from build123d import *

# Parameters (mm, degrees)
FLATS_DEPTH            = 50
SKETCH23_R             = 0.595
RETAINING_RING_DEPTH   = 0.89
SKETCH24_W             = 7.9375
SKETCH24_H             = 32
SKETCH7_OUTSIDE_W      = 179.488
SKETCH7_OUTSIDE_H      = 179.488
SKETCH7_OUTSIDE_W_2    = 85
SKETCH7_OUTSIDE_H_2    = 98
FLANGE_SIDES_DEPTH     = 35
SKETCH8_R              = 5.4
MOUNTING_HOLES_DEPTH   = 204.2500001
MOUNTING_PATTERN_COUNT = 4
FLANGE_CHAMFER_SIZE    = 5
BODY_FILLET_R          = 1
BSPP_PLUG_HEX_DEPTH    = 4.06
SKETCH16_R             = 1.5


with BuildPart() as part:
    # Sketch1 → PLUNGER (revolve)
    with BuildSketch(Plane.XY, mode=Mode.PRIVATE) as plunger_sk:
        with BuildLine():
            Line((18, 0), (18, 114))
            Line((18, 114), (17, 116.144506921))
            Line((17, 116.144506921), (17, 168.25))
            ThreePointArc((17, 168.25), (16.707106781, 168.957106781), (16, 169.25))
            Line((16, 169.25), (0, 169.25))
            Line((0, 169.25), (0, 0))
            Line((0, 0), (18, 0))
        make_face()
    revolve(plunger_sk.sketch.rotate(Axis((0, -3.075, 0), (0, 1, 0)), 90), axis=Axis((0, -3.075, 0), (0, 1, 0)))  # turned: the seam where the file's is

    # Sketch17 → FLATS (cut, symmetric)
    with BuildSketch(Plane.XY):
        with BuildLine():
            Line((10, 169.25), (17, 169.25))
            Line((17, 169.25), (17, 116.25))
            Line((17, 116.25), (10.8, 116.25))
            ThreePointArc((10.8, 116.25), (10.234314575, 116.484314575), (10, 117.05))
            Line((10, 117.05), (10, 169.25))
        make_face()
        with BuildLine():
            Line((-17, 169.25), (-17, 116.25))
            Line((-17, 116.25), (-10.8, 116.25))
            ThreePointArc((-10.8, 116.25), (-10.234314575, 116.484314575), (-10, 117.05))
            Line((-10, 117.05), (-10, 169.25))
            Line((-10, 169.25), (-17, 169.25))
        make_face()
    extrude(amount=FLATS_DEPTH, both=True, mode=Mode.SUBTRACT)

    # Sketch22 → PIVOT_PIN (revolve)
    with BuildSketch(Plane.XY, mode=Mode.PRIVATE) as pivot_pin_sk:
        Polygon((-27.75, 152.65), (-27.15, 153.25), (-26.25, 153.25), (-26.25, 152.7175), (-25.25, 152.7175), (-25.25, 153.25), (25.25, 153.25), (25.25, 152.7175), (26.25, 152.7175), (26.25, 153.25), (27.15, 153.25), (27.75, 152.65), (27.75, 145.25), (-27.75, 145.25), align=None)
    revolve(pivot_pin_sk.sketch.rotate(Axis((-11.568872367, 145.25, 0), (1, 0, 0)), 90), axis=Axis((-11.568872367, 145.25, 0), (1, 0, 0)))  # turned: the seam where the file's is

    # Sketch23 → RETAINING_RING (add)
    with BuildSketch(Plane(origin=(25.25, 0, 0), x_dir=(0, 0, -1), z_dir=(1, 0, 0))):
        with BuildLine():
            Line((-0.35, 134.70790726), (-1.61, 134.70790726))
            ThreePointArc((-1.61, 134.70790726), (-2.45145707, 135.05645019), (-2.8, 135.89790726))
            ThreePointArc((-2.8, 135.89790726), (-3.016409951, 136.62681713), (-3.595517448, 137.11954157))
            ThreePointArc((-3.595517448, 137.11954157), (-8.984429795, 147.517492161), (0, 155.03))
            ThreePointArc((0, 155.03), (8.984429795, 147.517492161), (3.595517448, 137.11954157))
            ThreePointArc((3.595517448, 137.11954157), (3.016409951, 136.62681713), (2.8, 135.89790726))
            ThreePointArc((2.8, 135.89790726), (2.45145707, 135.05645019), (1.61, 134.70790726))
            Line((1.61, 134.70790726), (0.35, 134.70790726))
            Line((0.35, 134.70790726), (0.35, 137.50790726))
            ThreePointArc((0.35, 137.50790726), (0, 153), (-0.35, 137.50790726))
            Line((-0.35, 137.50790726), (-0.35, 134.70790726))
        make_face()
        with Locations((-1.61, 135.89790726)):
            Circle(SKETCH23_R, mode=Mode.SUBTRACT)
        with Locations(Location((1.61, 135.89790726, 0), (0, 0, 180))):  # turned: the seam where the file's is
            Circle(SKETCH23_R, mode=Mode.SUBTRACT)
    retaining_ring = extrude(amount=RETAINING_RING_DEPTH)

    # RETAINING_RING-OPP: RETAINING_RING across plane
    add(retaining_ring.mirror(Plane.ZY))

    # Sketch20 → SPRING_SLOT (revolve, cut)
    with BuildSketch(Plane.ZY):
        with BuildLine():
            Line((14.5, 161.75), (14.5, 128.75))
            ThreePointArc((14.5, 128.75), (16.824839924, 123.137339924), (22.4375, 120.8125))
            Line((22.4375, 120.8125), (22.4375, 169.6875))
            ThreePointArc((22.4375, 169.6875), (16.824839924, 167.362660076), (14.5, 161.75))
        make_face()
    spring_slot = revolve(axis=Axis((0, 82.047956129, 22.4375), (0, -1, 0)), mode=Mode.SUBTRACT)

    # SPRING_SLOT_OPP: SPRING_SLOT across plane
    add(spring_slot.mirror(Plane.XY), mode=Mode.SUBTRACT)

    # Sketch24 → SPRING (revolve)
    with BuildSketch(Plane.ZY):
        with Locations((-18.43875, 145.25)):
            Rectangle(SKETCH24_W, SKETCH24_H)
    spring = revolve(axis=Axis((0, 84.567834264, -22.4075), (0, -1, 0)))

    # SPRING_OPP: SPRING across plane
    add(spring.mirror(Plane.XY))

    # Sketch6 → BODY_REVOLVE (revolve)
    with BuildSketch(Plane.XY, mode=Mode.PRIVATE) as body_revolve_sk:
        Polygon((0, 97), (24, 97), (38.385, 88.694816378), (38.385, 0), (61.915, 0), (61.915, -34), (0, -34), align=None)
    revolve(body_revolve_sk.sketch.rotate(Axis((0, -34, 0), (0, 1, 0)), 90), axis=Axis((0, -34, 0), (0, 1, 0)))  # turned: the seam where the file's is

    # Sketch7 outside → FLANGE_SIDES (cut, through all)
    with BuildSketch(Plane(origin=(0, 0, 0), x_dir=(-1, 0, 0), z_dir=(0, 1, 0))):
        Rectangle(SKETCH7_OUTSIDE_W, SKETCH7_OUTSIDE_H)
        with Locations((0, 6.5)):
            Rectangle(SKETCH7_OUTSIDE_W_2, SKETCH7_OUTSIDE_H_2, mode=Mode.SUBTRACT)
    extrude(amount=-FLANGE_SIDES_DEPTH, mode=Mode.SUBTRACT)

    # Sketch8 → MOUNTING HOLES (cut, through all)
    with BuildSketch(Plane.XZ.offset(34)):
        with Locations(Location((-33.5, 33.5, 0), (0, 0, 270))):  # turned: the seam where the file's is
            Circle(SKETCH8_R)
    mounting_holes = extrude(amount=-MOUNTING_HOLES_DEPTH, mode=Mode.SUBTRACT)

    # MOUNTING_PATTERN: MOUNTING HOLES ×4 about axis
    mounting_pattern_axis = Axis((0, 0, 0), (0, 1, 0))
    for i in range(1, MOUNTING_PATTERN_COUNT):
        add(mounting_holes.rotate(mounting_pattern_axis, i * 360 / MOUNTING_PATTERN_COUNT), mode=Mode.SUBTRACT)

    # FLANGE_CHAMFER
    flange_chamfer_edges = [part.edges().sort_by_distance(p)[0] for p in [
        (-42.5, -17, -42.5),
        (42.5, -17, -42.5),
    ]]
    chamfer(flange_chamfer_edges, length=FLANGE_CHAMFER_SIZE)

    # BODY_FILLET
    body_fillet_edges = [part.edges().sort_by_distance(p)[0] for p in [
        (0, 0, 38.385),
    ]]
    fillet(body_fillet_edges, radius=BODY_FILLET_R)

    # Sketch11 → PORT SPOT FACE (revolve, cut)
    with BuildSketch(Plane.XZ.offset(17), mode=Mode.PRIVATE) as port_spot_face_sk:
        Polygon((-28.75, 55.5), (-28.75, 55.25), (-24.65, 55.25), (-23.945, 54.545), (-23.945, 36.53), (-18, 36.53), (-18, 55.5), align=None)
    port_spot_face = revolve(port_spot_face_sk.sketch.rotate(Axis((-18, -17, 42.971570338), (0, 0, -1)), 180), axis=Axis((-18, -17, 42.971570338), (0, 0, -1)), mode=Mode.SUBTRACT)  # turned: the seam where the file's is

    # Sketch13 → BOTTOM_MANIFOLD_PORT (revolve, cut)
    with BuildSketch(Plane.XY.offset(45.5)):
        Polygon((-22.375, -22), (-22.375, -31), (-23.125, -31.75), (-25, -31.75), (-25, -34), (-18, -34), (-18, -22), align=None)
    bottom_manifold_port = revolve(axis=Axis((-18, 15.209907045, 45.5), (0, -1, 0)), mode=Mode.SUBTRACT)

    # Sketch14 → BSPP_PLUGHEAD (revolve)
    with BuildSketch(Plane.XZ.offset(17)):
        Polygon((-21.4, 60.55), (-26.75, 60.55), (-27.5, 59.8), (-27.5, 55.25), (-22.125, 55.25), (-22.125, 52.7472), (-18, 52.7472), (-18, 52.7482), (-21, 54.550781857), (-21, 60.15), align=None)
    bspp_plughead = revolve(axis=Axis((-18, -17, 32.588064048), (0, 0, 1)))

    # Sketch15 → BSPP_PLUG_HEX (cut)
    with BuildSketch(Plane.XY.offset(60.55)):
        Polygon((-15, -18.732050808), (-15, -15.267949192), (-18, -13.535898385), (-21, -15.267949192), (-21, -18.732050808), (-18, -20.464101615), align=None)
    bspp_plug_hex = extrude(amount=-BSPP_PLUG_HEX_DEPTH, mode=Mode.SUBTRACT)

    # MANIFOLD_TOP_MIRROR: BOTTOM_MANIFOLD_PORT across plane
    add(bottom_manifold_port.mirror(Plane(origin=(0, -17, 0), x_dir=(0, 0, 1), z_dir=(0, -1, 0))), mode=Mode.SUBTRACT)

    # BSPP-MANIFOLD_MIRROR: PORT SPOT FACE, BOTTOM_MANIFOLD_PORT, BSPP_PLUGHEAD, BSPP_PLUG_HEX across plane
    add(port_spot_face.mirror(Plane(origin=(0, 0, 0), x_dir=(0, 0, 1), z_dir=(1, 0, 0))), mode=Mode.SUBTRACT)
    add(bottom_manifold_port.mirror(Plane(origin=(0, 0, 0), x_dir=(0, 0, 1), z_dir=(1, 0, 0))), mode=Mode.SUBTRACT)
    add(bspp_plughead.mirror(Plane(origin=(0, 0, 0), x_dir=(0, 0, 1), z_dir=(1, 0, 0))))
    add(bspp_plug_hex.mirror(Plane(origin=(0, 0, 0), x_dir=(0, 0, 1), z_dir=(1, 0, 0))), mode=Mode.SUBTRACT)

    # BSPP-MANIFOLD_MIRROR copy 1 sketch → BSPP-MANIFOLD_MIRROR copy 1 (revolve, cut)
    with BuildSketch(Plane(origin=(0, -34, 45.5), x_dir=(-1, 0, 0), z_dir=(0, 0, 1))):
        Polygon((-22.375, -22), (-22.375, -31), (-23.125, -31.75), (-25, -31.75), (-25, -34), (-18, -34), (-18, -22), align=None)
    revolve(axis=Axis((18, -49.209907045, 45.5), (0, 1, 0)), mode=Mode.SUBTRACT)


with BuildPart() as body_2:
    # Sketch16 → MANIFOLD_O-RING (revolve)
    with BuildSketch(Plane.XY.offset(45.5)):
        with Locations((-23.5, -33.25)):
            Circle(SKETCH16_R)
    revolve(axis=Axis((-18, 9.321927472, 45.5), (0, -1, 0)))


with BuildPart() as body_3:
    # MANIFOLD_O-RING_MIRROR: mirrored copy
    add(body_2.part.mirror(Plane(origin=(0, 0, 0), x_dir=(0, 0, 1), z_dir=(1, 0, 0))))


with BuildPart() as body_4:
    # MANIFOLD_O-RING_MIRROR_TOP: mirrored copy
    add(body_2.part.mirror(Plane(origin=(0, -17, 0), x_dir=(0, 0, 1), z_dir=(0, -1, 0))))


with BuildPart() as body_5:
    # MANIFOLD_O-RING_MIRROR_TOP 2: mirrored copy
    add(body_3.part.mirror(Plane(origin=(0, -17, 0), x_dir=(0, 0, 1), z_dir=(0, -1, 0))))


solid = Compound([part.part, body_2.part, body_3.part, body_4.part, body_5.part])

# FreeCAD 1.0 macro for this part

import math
import FreeCAD as App
import Part
import Sketcher

V = App.Vector
Q = App.Units.Quantity


def edges_at(feature, points):
    """Names of the edges that pass closest to the given points."""
    edges = feature.Shape.Edges
    near = lambda p: min(range(len(edges)), key=lambda i: edges[i].distToShape(Part.Vertex(*p))[0])
    return sorted({f"Edge{near(p) + 1}" for p in points})


def add_polygon(sketch, points):
    """Adds a closed chain of lines whose ends are joined by coincident constraints."""
    first, n = sketch.GeometryCount, len(points)
    for a, b in zip(points, points[1:] + points[:1]):
        sketch.addGeometry(Part.LineSegment(App.Vector(*a, 0), App.Vector(*b, 0)), False)
    for i in range(n):
        sketch.addConstraint(Sketcher.Constraint("Coincident", first + i, 2, first + (i + 1) % n, 1))

doc = App.newDocument("Part")
params = doc.addObject("Spreadsheet::Sheet", "Params")
for row, (alias, value) in enumerate([
    ("sketch1_radius", "1 mm"),
    ("sketch1_width", "16 mm"),
    ("sketch1_width2", "18 mm"),
    ("sketch1_height", "114 mm"),
    ("sketch1_height2", "169.25 mm"),
    ("revolution_angle", "360 deg"),
    ("sketch2_radius", "0.8 mm"),
    ("sketch2_width", "7 mm"),
    ("sketch2_height", "53 mm"),
    ("pocket1_length", "100 mm"),
    ("sketch3_width", "1 mm"),
    ("sketch3_width2", "55.5 mm"),
    ("sketch3_width3", "0.9 mm"),
    ("sketch3_width4", "50.5 mm"),
    ("sketch3_height", "7.4 mm"),
    ("revolution2_angle", "360 deg"),
    ("sketch4_diameter", "1.19 mm"),
    ("sketch4_radius", "7.75 mm"),
    ("sketch4_radius2", "1.19 mm"),
    ("sketch4_width", "2.8 mm"),
    ("sketch4_height", "1.26 mm"),
    ("pad1_length", "0.89 mm"),
    ("sketch5_width", "33 mm"),
    ("groove_angle", "360 deg"),
    ("sketch6_width", "32 mm"),
    ("revolution3_angle", "360 deg"),
    ("sketch7_width", "24 mm"),
    ("sketch7_height", "131 mm"),
    ("sketch7_height2", "34 mm"),
    ("sketch7_width2", "23.53 mm"),
    ("revolution4_angle", "360 deg"),
    ("sketch8_width", "85 mm"),
    ("sketch8_height", "98 mm"),
    ("sketch9_diameter", "10.8 mm"),
    ("chamfer_size", "5 mm"),
    ("fillet_radius", "1 mm"),
    ("sketch10_width", "4.1 mm"),
    ("sketch10_width2", "10.75 mm"),
    ("sketch10_height", "0.25 mm"),
    ("sketch10_height2", "18.97 mm"),
    ("groove2_angle", "360 deg"),
    ("sketch11_width", "7 mm"),
    ("sketch11_height", "9 mm"),
    ("sketch11_height2", "12 mm"),
    ("sketch11_height3", "2.25 mm"),
    ("groove3_angle", "360 deg"),
    ("sketch12_width", "5.35 mm"),
    ("sketch12_height", "4.55 mm"),
    ("revolution5_angle", "360 deg"),
    ("pocket4_length", "4.06 mm"),
    ("sketch14_width", "7 mm"),
    ("sketch14_height", "9 mm"),
    ("sketch14_height2", "12 mm"),
    ("sketch14_height3", "2.25 mm"),
    ("groove4_angle", "360 deg"),
    ("sketch15_diameter", "3 mm"),
    ("sketch15_height", "10 mm"),
    ("revolution6_angle", "360 deg"),
], start=1):
    params.set(f"A{row}", alias)
    params.set(f"B{row}", "=" + value)
    params.setAlias(f"B{row}", alias)

body = doc.addObject("PartDesign::Body", "Body")

# Sketch on XY plane
sketch1 = doc.addObject("Sketcher::SketchObject", "Sketch")
body.addObject(sketch1)
sketch1.AttachmentSupport = (doc.XY_Plane, [""])
sketch1.MapMode = "FlatFace"
sketch1.addGeometry(Part.LineSegment(V(18, 0, 0), V(18, 114, 0)), False)
sketch1.addGeometry(Part.LineSegment(V(18, 114, 0), V(17, 116.144507, 0)), False)
sketch1.addGeometry(Part.LineSegment(V(17, 116.144507, 0), V(17, 168.25, 0)), False)
sketch1.addGeometry(Part.ArcOfCircle(Part.Circle(V(16, 168.25, 0), V(0, 0, 1), 1), math.radians(0), math.radians(90)), False)
sketch1.addGeometry(Part.LineSegment(V(16, 169.25, 0), V(0, 169.25, 0)), False)
sketch1.addGeometry(Part.LineSegment(V(0, 169.25, 0), V(0, 0, 0)), False)
sketch1.addGeometry(Part.LineSegment(V(0, 0, 0), V(18, 0, 0)), False)
sketch1.addConstraint(Sketcher.Constraint("Coincident", 0, 2, 1, 1))
sketch1.addConstraint(Sketcher.Constraint("Coincident", 1, 2, 2, 1))
sketch1.addConstraint(Sketcher.Constraint("Tangent", 2, 2, 3, 1))
sketch1.addConstraint(Sketcher.Constraint("Tangent", 3, 2, 4, 1))
sketch1.addConstraint(Sketcher.Constraint("Coincident", 4, 2, 5, 1))
sketch1.addConstraint(Sketcher.Constraint("Coincident", 5, 2, 6, 1))
sketch1.addConstraint(Sketcher.Constraint("Coincident", 6, 2, 0, 1))
sketch1.addConstraint(Sketcher.Constraint("Vertical", 0))
sketch1.addConstraint(Sketcher.Constraint("Vertical", 2))
sketch1.addConstraint(Sketcher.Constraint("Horizontal", 4))
sketch1.addConstraint(Sketcher.Constraint("Vertical", 5))
sketch1.addConstraint(Sketcher.Constraint("Horizontal", 6))
sketch1.addConstraint(Sketcher.Constraint("Coincident", 5, 2, -1, 1))
sketch1.addConstraint(Sketcher.Constraint("Radius", 3, Q("1 mm")))
sketch1.addConstraint(Sketcher.Constraint("DistanceX", 4, 2, 4, 1, Q("16 mm")))
sketch1.addConstraint(Sketcher.Constraint("DistanceX", 6, 1, 6, 2, Q("18 mm")))
sketch1.addConstraint(Sketcher.Constraint("DistanceY", 0, 1, 0, 2, Q("114 mm")))
sketch1.addConstraint(Sketcher.Constraint("Angle", 1, Q("115 deg")))
sketch1.addConstraint(Sketcher.Constraint("DistanceY", 5, 2, 5, 1, Q("169.25 mm")))
sketch1.setExpression("Constraints[13]", "Params.sketch1_radius")
sketch1.setExpression("Constraints[14]", "Params.sketch1_width")
sketch1.setExpression("Constraints[15]", "Params.sketch1_width2")
sketch1.setExpression("Constraints[16]", "Params.sketch1_height")
sketch1.setExpression("Constraints[18]", "Params.sketch1_height2")
revolution = doc.addObject("PartDesign::Revolution", "Revolution")
body.addObject(revolution)
revolution.Profile = sketch1
revolution.ReferenceAxis = (sketch1, ["V_Axis"])
revolution.setExpression("Angle", "Params.revolution_angle")

# Sketch on XY plane
sketch2 = doc.addObject("Sketcher::SketchObject", "Sketch001")
body.addObject(sketch2)
sketch2.AttachmentSupport = (doc.XY_Plane, [""])
sketch2.MapMode = "FlatFace"
sketch2.addGeometry(Part.LineSegment(V(17, 169.25, 0), V(10, 169.25, 0)), False)
sketch2.addGeometry(Part.LineSegment(V(10, 169.25, 0), V(10, 117.05, 0)), False)
sketch2.addGeometry(Part.ArcOfCircle(Part.Circle(V(10.8, 117.05, 0), V(0, 0, 1), 0.8), math.radians(180), math.radians(270)), False)
sketch2.addGeometry(Part.LineSegment(V(10.8, 116.25, 0), V(17, 116.25, 0)), False)
sketch2.addGeometry(Part.LineSegment(V(17, 116.25, 0), V(17, 169.25, 0)), False)
sketch2.addGeometry(Part.LineSegment(V(-17, 169.25, 0), V(-17, 116.25, 0)), False)
sketch2.addGeometry(Part.LineSegment(V(-17, 116.25, 0), V(-10.8, 116.25, 0)), False)
sketch2.addGeometry(Part.ArcOfCircle(Part.Circle(V(-10.8, 117.05, 0), V(0, 0, 1), 0.8), math.radians(-90), math.radians(0)), False)
sketch2.addGeometry(Part.LineSegment(V(-10, 117.05, 0), V(-10, 169.25, 0)), False)
sketch2.addGeometry(Part.LineSegment(V(-10, 169.25, 0), V(-17, 169.25, 0)), False)
sketch2.addConstraint(Sketcher.Constraint("Coincident", 0, 2, 1, 1))
sketch2.addConstraint(Sketcher.Constraint("Tangent", 1, 2, 2, 1))
sketch2.addConstraint(Sketcher.Constraint("Tangent", 2, 2, 3, 1))
sketch2.addConstraint(Sketcher.Constraint("Coincident", 3, 2, 4, 1))
sketch2.addConstraint(Sketcher.Constraint("Coincident", 4, 2, 0, 1))
sketch2.addConstraint(Sketcher.Constraint("Coincident", 5, 2, 6, 1))
sketch2.addConstraint(Sketcher.Constraint("Tangent", 6, 2, 7, 1))
sketch2.addConstraint(Sketcher.Constraint("Tangent", 7, 2, 8, 1))
sketch2.addConstraint(Sketcher.Constraint("Coincident", 8, 2, 9, 1))
sketch2.addConstraint(Sketcher.Constraint("Coincident", 9, 2, 5, 1))
sketch2.addConstraint(Sketcher.Constraint("Horizontal", 0))
sketch2.addConstraint(Sketcher.Constraint("Vertical", 1))
sketch2.addConstraint(Sketcher.Constraint("Horizontal", 3))
sketch2.addConstraint(Sketcher.Constraint("Vertical", 4))
sketch2.addConstraint(Sketcher.Constraint("Vertical", 5))
sketch2.addConstraint(Sketcher.Constraint("Horizontal", 6))
sketch2.addConstraint(Sketcher.Constraint("Vertical", 8))
sketch2.addConstraint(Sketcher.Constraint("Horizontal", 9))
sketch2.addConstraint(Sketcher.Constraint("Equal", 2, 7))
sketch2.addConstraint(Sketcher.Constraint("Symmetric", 2, 3, 7, 3, -2))
sketch2.addConstraint(Sketcher.Constraint("Symmetric", 4, 2, 9, 2, -2))
sketch2.addConstraint(Sketcher.Constraint("Radius", 2, Q("0.8 mm")))
sketch2.addConstraint(Sketcher.Constraint("DistanceX", 0, 2, 0, 1, Q("7 mm")))
sketch2.addConstraint(Sketcher.Constraint("DistanceY", 4, 1, 4, 2, Q("53 mm")))
sketch2.addConstraint(Sketcher.Constraint("DistanceX", -1, 1, 0, 2, Q("10 mm")))
sketch2.addConstraint(Sketcher.Constraint("DistanceY", -1, 1, 2, 3, Q("117.05 mm")))
sketch2.setExpression("Constraints[21]", "Params.sketch2_radius")
sketch2.setExpression("Constraints[22]", "Params.sketch2_width")
sketch2.setExpression("Constraints[23]", "Params.sketch2_height")
pocket1 = doc.addObject("PartDesign::Pocket", "Pocket")
body.addObject(pocket1)
pocket1.Profile = sketch2
pocket1.setExpression("Length", "Params.pocket1_length")
pocket1.Midplane = True

# Sketch on XY plane
sketch3 = doc.addObject("Sketcher::SketchObject", "Sketch002")
body.addObject(sketch3)
sketch3.AttachmentSupport = (doc.XY_Plane, [""])
sketch3.MapMode = "FlatFace"
add_polygon(sketch3, [(-27.15, 153.25), (-27.75, 152.65), (-27.75, 145.25), (27.75, 145.25), (27.75, 152.65), (27.15, 153.25), (26.25, 153.25), (26.25, 152.7175), (25.25, 152.7175), (25.25, 153.25), (-25.25, 153.25), (-25.25, 152.7175), (-26.25, 152.7175), (-26.25, 153.25)])  # lines 0-13
sketch3.addGeometry(Part.LineSegment(V(-27.75, 145.25, 0), V(27.75, 145.25, 0)), True)  # axis
sketch3.addConstraint(Sketcher.Constraint("Vertical", 1))
sketch3.addConstraint(Sketcher.Constraint("Horizontal", 2))
sketch3.addConstraint(Sketcher.Constraint("Vertical", 3))
sketch3.addConstraint(Sketcher.Constraint("Horizontal", 5))
sketch3.addConstraint(Sketcher.Constraint("Vertical", 6))
sketch3.addConstraint(Sketcher.Constraint("Horizontal", 7))
sketch3.addConstraint(Sketcher.Constraint("Vertical", 8))
sketch3.addConstraint(Sketcher.Constraint("Horizontal", 9))
sketch3.addConstraint(Sketcher.Constraint("Vertical", 10))
sketch3.addConstraint(Sketcher.Constraint("Horizontal", 11))
sketch3.addConstraint(Sketcher.Constraint("Vertical", 12))
sketch3.addConstraint(Sketcher.Constraint("Horizontal", 13))
sketch3.addConstraint(Sketcher.Constraint("Horizontal", 14))
sketch3.addConstraint(Sketcher.Constraint("Coincident", 14, 1, 1, 2))
sketch3.addConstraint(Sketcher.Constraint("Symmetric", 0, 2, 3, 2, -2))
sketch3.addConstraint(Sketcher.Constraint("Symmetric", 7, 2, 10, 2, -2))
sketch3.addConstraint(Sketcher.Constraint("Symmetric", 5, 2, 12, 2, -2))
sketch3.addConstraint(Sketcher.Constraint("Perpendicular", 0, 4))
sketch3.addConstraint(Sketcher.Constraint("Horizontal", 5, 2, 8, 2))
sketch3.addConstraint(Sketcher.Constraint("Vertical", 3, 2, 14, 2))
sketch3.addConstraint(Sketcher.Constraint("Equal", 5, 13))
sketch3.addConstraint(Sketcher.Constraint("DistanceX", 7, 2, 7, 1, Q("1 mm")))
sketch3.addConstraint(Sketcher.Constraint("DistanceX", 2, 1, 2, 2, Q("55.5 mm")))
sketch3.addConstraint(Sketcher.Constraint("DistanceX", 5, 2, 5, 1, Q("0.9 mm")))
sketch3.addConstraint(Sketcher.Constraint("DistanceX", 9, 2, 9, 1, Q("50.5 mm")))
sketch3.addConstraint(Sketcher.Constraint("DistanceY", 1, 2, 1, 1, Q("7.4 mm")))
sketch3.addConstraint(Sketcher.Constraint("DistanceY", -1, 1, 0, 2, Q("152.65 mm")))
sketch3.addConstraint(Sketcher.Constraint("DistanceY", 6, 2, 6, 1, Q("0.5325 mm")))
sketch3.setExpression("Constraints[35]", "Params.sketch3_width")
sketch3.setExpression("Constraints[36]", "Params.sketch3_width2")
sketch3.setExpression("Constraints[37]", "Params.sketch3_width3")
sketch3.setExpression("Constraints[38]", "Params.sketch3_width4")
sketch3.setExpression("Constraints[39]", "Params.sketch3_height")
revolution2 = doc.addObject("PartDesign::Revolution", "Revolution001")
body.addObject(revolution2)
revolution2.Profile = sketch3
revolution2.ReferenceAxis = (sketch3, ["Axis0"])
revolution2.setExpression("Angle", "Params.revolution2_angle")

# Sketch on YZ plane
sketch4 = doc.addObject("Sketcher::SketchObject", "Sketch003")
body.addObject(sketch4)
sketch4.AttachmentSupport = (doc.YZ_Plane, [""])
sketch4.MapMode = "FlatFace"
sketch4.AttachmentOffset = App.Placement(V(0, 0, 25.25), App.Rotation())
sketch4.addGeometry(Part.LineSegment(V(134.707907, 1.61, 0), V(134.707907, 0.35, 0)), False)
sketch4.addGeometry(Part.LineSegment(V(134.707907, 0.35, 0), V(137.507907, 0.35, 0)), False)
sketch4.addGeometry(Part.ArcOfCircle(Part.Circle(V(145.25, 0, 0), V(0, 0, 1), 7.75), math.radians(-177.411568), math.radians(177.411568)), False)
sketch4.addGeometry(Part.LineSegment(V(137.507907, -0.35, 0), V(134.707907, -0.35, 0)), False)
sketch4.addGeometry(Part.LineSegment(V(134.707907, -0.35, 0), V(134.707907, -1.61, 0)), False)
sketch4.addGeometry(Part.ArcOfCircle(Part.Circle(V(135.897907, -1.61, 0), V(0, 0, 1), 1.19), math.radians(180), math.radians(270)), False)
sketch4.addGeometry(Part.ArcOfCircle(Part.Circle(V(135.897907, -4.135759, 0), V(0, 0, 1), 1.335759), math.radians(23.856363), math.radians(90)), False)
sketch4.addGeometry(Part.ArcOfCircle(Part.Circle(V(145.676048, 0.18841, 0), V(0, 0, 1), 9.355849), math.radians(-156.143637), math.radians(-1.153915)), False)
sketch4.addGeometry(Part.ArcOfCircle(Part.Circle(V(145.676048, -0.18841, 0), V(0, 0, 1), 9.355849), math.radians(1.153915), math.radians(156.143637)), False)
sketch4.addGeometry(Part.ArcOfCircle(Part.Circle(V(135.897907, 4.135759, 0), V(0, 0, 1), 1.335759), math.radians(-90), math.radians(-23.856363)), False)
sketch4.addGeometry(Part.ArcOfCircle(Part.Circle(V(135.897907, 1.61, 0), V(0, 0, 1), 1.19), math.radians(90), math.radians(180)), False)
sketch4.addGeometry(Part.Circle(V(135.897907, -1.61, 0), V(0, 0, 1), 0.595), False)
sketch4.addGeometry(Part.Circle(V(135.897907, 1.61, 0), V(0, 0, 1), 0.595), False)
sketch4.addConstraint(Sketcher.Constraint("Coincident", 0, 2, 1, 1))
sketch4.addConstraint(Sketcher.Constraint("Coincident", 1, 2, 2, 2))
sketch4.addConstraint(Sketcher.Constraint("Coincident", 2, 1, 3, 1))
sketch4.addConstraint(Sketcher.Constraint("Coincident", 3, 2, 4, 1))
sketch4.addConstraint(Sketcher.Constraint("Tangent", 4, 2, 5, 1))
sketch4.addConstraint(Sketcher.Constraint("Tangent", 5, 2, 6, 2))
sketch4.addConstraint(Sketcher.Constraint("Tangent", 6, 1, 7, 1))
sketch4.addConstraint(Sketcher.Constraint("Coincident", 7, 2, 8, 1))
sketch4.addConstraint(Sketcher.Constraint("Tangent", 8, 2, 9, 2))
sketch4.addConstraint(Sketcher.Constraint("Tangent", 9, 1, 10, 1))
sketch4.addConstraint(Sketcher.Constraint("Tangent", 10, 2, 0, 1))
sketch4.addConstraint(Sketcher.Constraint("Vertical", 0))
sketch4.addConstraint(Sketcher.Constraint("Horizontal", 1))
sketch4.addConstraint(Sketcher.Constraint("Horizontal", 3))
sketch4.addConstraint(Sketcher.Constraint("Vertical", 4))
sketch4.addConstraint(Sketcher.Constraint("Coincident", 11, 3, 5, 3))
sketch4.addConstraint(Sketcher.Constraint("Coincident", 12, 3, 10, 3))
sketch4.addConstraint(Sketcher.Constraint("Equal", 7, 8))
sketch4.addConstraint(Sketcher.Constraint("Equal", 6, 9))
sketch4.addConstraint(Sketcher.Constraint("Equal", 5, 10))
sketch4.addConstraint(Sketcher.Constraint("Equal", 11, 12))
sketch4.addConstraint(Sketcher.Constraint("Symmetric", 7, 3, 8, 3, -1))
sketch4.addConstraint(Sketcher.Constraint("Symmetric", 5, 3, 10, 3, -1))
sketch4.addConstraint(Sketcher.Constraint("Symmetric", 1, 2, 2, 1, -1))
sketch4.addConstraint(Sketcher.Constraint("Vertical", 5, 3, 6, 3))
sketch4.addConstraint(Sketcher.Constraint("Diameter", 11, Q("1.19 mm")))
sketch4.addConstraint(Sketcher.Constraint("Radius", 2, Q("7.75 mm")))
sketch4.addConstraint(Sketcher.Constraint("Radius", 5, Q("1.19 mm")))
sketch4.addConstraint(Sketcher.Constraint("DistanceX", 1, 1, 1, 2, Q("2.8 mm")))
sketch4.addConstraint(Sketcher.Constraint("DistanceY", 0, 2, 0, 1, Q("1.26 mm")))
sketch4.addConstraint(Sketcher.Constraint("DistanceY", 5, 2, -1, 1, Q("2.8 mm")))
sketch4.addConstraint(Sketcher.Constraint("DistanceX", -1, 1, 2, 3, Q("145.25 mm")))
sketch4.addConstraint(Sketcher.Constraint("DistanceX", -1, 1, 7, 2, Q("155.03 mm")))
sketch4.addConstraint(Sketcher.Constraint("Radius", 6, Q("1.335759 mm")))
sketch4.addConstraint(Sketcher.Constraint("Radius", 7, Q("9.355849 mm")))
sketch4.setExpression("Constraints[25]", "Params.sketch4_diameter")
sketch4.setExpression("Constraints[26]", "Params.sketch4_radius")
sketch4.setExpression("Constraints[27]", "Params.sketch4_radius2")
sketch4.setExpression("Constraints[28]", "Params.sketch4_width")
sketch4.setExpression("Constraints[29]", "Params.sketch4_height")
pad1 = doc.addObject("PartDesign::Pad", "Pad")
body.addObject(pad1)
pad1.Profile = sketch4
pad1.setExpression("Length", "Params.pad1_length")
doc.recompute()

mirrored = doc.addObject("PartDesign::Mirrored", "Mirrored")
body.addObject(mirrored)
mirrored.Originals = [pad1]
mirrored.MirrorPlane = (doc.YZ_Plane, [""])
body.Tip = mirrored

# Sketch on YZ plane
sketch5 = doc.addObject("Sketcher::SketchObject", "Sketch004")
body.addObject(sketch5)
sketch5.AttachmentSupport = (doc.YZ_Plane, [""])
sketch5.MapMode = "FlatFace"
sketch5.addGeometry(Part.LineSegment(V(161.75, 14.5, 0), V(128.75, 14.5, 0)), False)
sketch5.addGeometry(Part.ArcOfCircle(Part.Circle(V(128.75, 22.4375, 0), V(0, 0, 1), 7.9375), math.radians(180), math.radians(270)), False)
sketch5.addGeometry(Part.LineSegment(V(120.8125, 22.4375, 0), V(169.6875, 22.4375, 0)), False)
sketch5.addGeometry(Part.ArcOfCircle(Part.Circle(V(161.75, 22.4375, 0), V(0, 0, 1), 7.9375), math.radians(-90), math.radians(0)), False)
sketch5.addGeometry(Part.LineSegment(V(169.6875, 22.4375, 0), V(120.8125, 22.4375, 0)), True)  # axis
sketch5.addConstraint(Sketcher.Constraint("Tangent", 0, 2, 1, 2))
sketch5.addConstraint(Sketcher.Constraint("Coincident", 1, 1, 2, 1))
sketch5.addConstraint(Sketcher.Constraint("Coincident", 2, 2, 3, 2))
sketch5.addConstraint(Sketcher.Constraint("Tangent", 3, 1, 0, 1))
sketch5.addConstraint(Sketcher.Constraint("Horizontal", 0))
sketch5.addConstraint(Sketcher.Constraint("Horizontal", 2))
sketch5.addConstraint(Sketcher.Constraint("Horizontal", 4))
sketch5.addConstraint(Sketcher.Constraint("Coincident", 4, 1, 2, 2))
sketch5.addConstraint(Sketcher.Constraint("Equal", 1, 3))
sketch5.addConstraint(Sketcher.Constraint("Horizontal", 3, 3, 1, 1))
sketch5.addConstraint(Sketcher.Constraint("Equal", 2, 4))
sketch5.addConstraint(Sketcher.Constraint("DistanceX", 0, 2, 0, 1, Q("33 mm")))
sketch5.addConstraint(Sketcher.Constraint("DistanceY", -1, 1, 0, 2, Q("14.5 mm")))
sketch5.addConstraint(Sketcher.Constraint("Radius", 1, Q("7.9375 mm")))
sketch5.addConstraint(Sketcher.Constraint("DistanceX", -1, 1, 1, 3, Q("128.75 mm")))
sketch5.setExpression("Constraints[11]", "Params.sketch5_width")
groove = doc.addObject("PartDesign::Groove", "Groove")
body.addObject(groove)
groove.Profile = sketch5
groove.ReferenceAxis = (sketch5, ["Axis0"])
groove.setExpression("Angle", "Params.groove_angle")
doc.recompute()

mirrored2 = doc.addObject("PartDesign::Mirrored", "Mirrored001")
body.addObject(mirrored2)
mirrored2.Originals = [groove]
mirrored2.MirrorPlane = (doc.XY_Plane, [""])
body.Tip = mirrored2

# Sketch on YZ plane
sketch6 = doc.addObject("Sketcher::SketchObject", "Sketch005")
body.addObject(sketch6)
sketch6.AttachmentSupport = (doc.YZ_Plane, [""])
sketch6.MapMode = "FlatFace"
add_polygon(sketch6, [(161.25, -22.4075), (129.25, -22.4075), (129.25, -14.47), (161.25, -14.47)])  # lines 0-3
sketch6.addGeometry(Part.LineSegment(V(161.25, -22.4075, 0), V(129.25, -22.4075, 0)), True)  # axis
sketch6.addConstraint(Sketcher.Constraint("Horizontal", 0))
sketch6.addConstraint(Sketcher.Constraint("Vertical", 1))
sketch6.addConstraint(Sketcher.Constraint("Horizontal", 2))
sketch6.addConstraint(Sketcher.Constraint("Vertical", 3))
sketch6.addConstraint(Sketcher.Constraint("Horizontal", 4))
sketch6.addConstraint(Sketcher.Constraint("Coincident", 4, 1, 3, 2))
sketch6.addConstraint(Sketcher.Constraint("Vertical", 1, 2, 4, 2))
sketch6.addConstraint(Sketcher.Constraint("DistanceX", 0, 2, 0, 1, Q("32 mm")))
sketch6.addConstraint(Sketcher.Constraint("DistanceX", -1, 1, 0, 2, Q("129.25 mm")))
sketch6.addConstraint(Sketcher.Constraint("DistanceY", 1, 2, -1, 1, Q("14.47 mm")))
sketch6.addConstraint(Sketcher.Constraint("DistanceY", 1, 1, 1, 2, Q("7.9375 mm")))
sketch6.setExpression("Constraints[11]", "Params.sketch6_width")
revolution3 = doc.addObject("PartDesign::Revolution", "Revolution002")
body.addObject(revolution3)
revolution3.Profile = sketch6
revolution3.ReferenceAxis = (sketch6, ["Axis0"])
revolution3.setExpression("Angle", "Params.revolution3_angle")
doc.recompute()

mirrored3 = doc.addObject("PartDesign::Mirrored", "Mirrored002")
body.addObject(mirrored3)
mirrored3.Originals = [revolution3]
mirrored3.MirrorPlane = (doc.XY_Plane, [""])
body.Tip = mirrored3

# Sketch on XY plane
sketch7 = doc.addObject("Sketcher::SketchObject", "Sketch006")
body.addObject(sketch7)
sketch7.AttachmentSupport = (doc.XY_Plane, [""])
sketch7.MapMode = "FlatFace"
add_polygon(sketch7, [(24, 97), (0, 97), (0, -34), (61.915, -34), (61.915, 0), (38.385, 0), (38.385, 88.694816)])  # lines 0-6
sketch7.addConstraint(Sketcher.Constraint("Horizontal", 0))
sketch7.addConstraint(Sketcher.Constraint("Vertical", 1))
sketch7.addConstraint(Sketcher.Constraint("Horizontal", 2))
sketch7.addConstraint(Sketcher.Constraint("Vertical", 3))
sketch7.addConstraint(Sketcher.Constraint("Horizontal", 4))
sketch7.addConstraint(Sketcher.Constraint("Vertical", 5))
sketch7.addConstraint(Sketcher.Constraint("PointOnObject", 0, 2, -2))
sketch7.addConstraint(Sketcher.Constraint("PointOnObject", 3, 2, -1))
sketch7.addConstraint(Sketcher.Constraint("DistanceX", 0, 2, 0, 1, Q("24 mm")))
sketch7.addConstraint(Sketcher.Constraint("DistanceY", 1, 2, 1, 1, Q("131 mm")))
sketch7.addConstraint(Sketcher.Constraint("DistanceY", 3, 1, 3, 2, Q("34 mm")))
sketch7.addConstraint(Sketcher.Constraint("Angle", 6, Q("150 deg")))
sketch7.addConstraint(Sketcher.Constraint("DistanceX", 4, 2, 4, 1, Q("23.53 mm")))
sketch7.addConstraint(Sketcher.Constraint("DistanceX", 2, 1, 2, 2, Q("61.915 mm")))
sketch7.setExpression("Constraints[15]", "Params.sketch7_width")
sketch7.setExpression("Constraints[16]", "Params.sketch7_height")
sketch7.setExpression("Constraints[17]", "Params.sketch7_height2")
sketch7.setExpression("Constraints[19]", "Params.sketch7_width2")
revolution4 = doc.addObject("PartDesign::Revolution", "Revolution003")
body.addObject(revolution4)
revolution4.Profile = sketch7
revolution4.ReferenceAxis = (sketch7, ["V_Axis"])
revolution4.setExpression("Angle", "Params.revolution4_angle")

# Sketch on XZ plane
sketch8 = doc.addObject("Sketcher::SketchObject", "Sketch007")
body.addObject(sketch8)
sketch8.AttachmentSupport = (doc.XZ_Plane, [""])
sketch8.MapMode = "FlatFace"
add_polygon(sketch8, [(89.744, 89.744), (89.744, -89.744), (-89.744, -89.744), (-89.744, 89.744)])  # lines 0-3
add_polygon(sketch8, [(-42.5, -42.5), (42.5, -42.5), (42.5, 55.5), (-42.5, 55.5)])  # lines 4-7
sketch8.addConstraint(Sketcher.Constraint("Vertical", 0))
sketch8.addConstraint(Sketcher.Constraint("Horizontal", 1))
sketch8.addConstraint(Sketcher.Constraint("Vertical", 2))
sketch8.addConstraint(Sketcher.Constraint("Horizontal", 3))
sketch8.addConstraint(Sketcher.Constraint("Horizontal", 4))
sketch8.addConstraint(Sketcher.Constraint("Vertical", 5))
sketch8.addConstraint(Sketcher.Constraint("Horizontal", 6))
sketch8.addConstraint(Sketcher.Constraint("Vertical", 7))
sketch8.addConstraint(Sketcher.Constraint("Symmetric", 0, 2, 2, 2, -1, 1))
sketch8.addConstraint(Sketcher.Constraint("Equal", 3, 0))
sketch8.addConstraint(Sketcher.Constraint("DistanceX", 4, 1, 4, 2, Q("85 mm")))
sketch8.addConstraint(Sketcher.Constraint("DistanceY", 5, 1, 5, 2, Q("98 mm")))
sketch8.addConstraint(Sketcher.Constraint("DistanceX", -1, 1, 4, 2, Q("42.5 mm")))
sketch8.addConstraint(Sketcher.Constraint("DistanceY", 4, 2, -1, 1, Q("42.5 mm")))
sketch8.addConstraint(Sketcher.Constraint("DistanceX", 1, 2, 1, 1, Q("179.488 mm")))
sketch8.setExpression("Constraints[18]", "Params.sketch8_width")
sketch8.setExpression("Constraints[19]", "Params.sketch8_height")
pocket2 = doc.addObject("PartDesign::Pocket", "Pocket001")
body.addObject(pocket2)
pocket2.Profile = sketch8
pocket2.Type = "ThroughAll"
pocket2.Reversed = True

# Sketch on XZ plane
sketch9 = doc.addObject("Sketcher::SketchObject", "Sketch008")
body.addObject(sketch9)
sketch9.AttachmentSupport = (doc.XZ_Plane, [""])
sketch9.MapMode = "FlatFace"
sketch9.AttachmentOffset = App.Placement(V(0, 0, 34), App.Rotation())
sketch9.addGeometry(Part.Circle(V(-33.5, 33.5, 0), V(0, 0, 1), 5.4), False)
sketch9.addConstraint(Sketcher.Constraint("Diameter", 0, Q("10.8 mm")))
sketch9.addConstraint(Sketcher.Constraint("DistanceX", 0, 3, -1, 1, Q("33.5 mm")))
sketch9.addConstraint(Sketcher.Constraint("DistanceY", -1, 1, 0, 3, Q("33.5 mm")))
sketch9.setExpression("Constraints[0]", "Params.sketch9_diameter")
pocket3 = doc.addObject("PartDesign::Pocket", "Pocket002")
body.addObject(pocket3)
pocket3.Profile = sketch9
pocket3.Type = "ThroughAll"
doc.recompute()

polarpattern = doc.addObject("PartDesign::PolarPattern", "PolarPattern")
body.addObject(polarpattern)
polarpattern.Originals = [pocket3]
polarpattern.Axis = (doc.Y_Axis, [""])
polarpattern.Angle = 360
polarpattern.Occurrences = 4
body.Tip = polarpattern
doc.recompute()

chamfer = doc.addObject("PartDesign::Chamfer", "Chamfer")
body.addObject(chamfer)
chamfer.Base = (polarpattern, edges_at(polarpattern, [(-42.5, -17, -42.5), (42.5, -17, -42.5)]))
chamfer.setExpression("Size", "Params.chamfer_size")
doc.recompute()

fillet = doc.addObject("PartDesign::Fillet", "Fillet")
body.addObject(fillet)
fillet.Base = (chamfer, edges_at(chamfer, [(0, 0, 38.385)]))
fillet.setExpression("Radius", "Params.fillet_radius")

# Sketch on XZ plane
sketch10 = doc.addObject("Sketcher::SketchObject", "Sketch009")
body.addObject(sketch10)
sketch10.AttachmentSupport = (doc.XZ_Plane, [""])
sketch10.MapMode = "FlatFace"
sketch10.AttachmentOffset = App.Placement(V(0, 0, 17), App.Rotation())
add_polygon(sketch10, [(-28.75, 55.5), (-28.75, 55.25), (-24.65, 55.25), (-23.945, 54.545), (-23.945, 36.53), (-18, 36.53), (-18, 55.5)])  # lines 0-6
sketch10.addGeometry(Part.LineSegment(V(-18, 55.5, 0), V(-18, 36.53, 0)), True)  # axis
sketch10.addConstraint(Sketcher.Constraint("Vertical", 0))
sketch10.addConstraint(Sketcher.Constraint("Horizontal", 1))
sketch10.addConstraint(Sketcher.Constraint("Vertical", 3))
sketch10.addConstraint(Sketcher.Constraint("Horizontal", 4))
sketch10.addConstraint(Sketcher.Constraint("Vertical", 5))
sketch10.addConstraint(Sketcher.Constraint("Horizontal", 6))
sketch10.addConstraint(Sketcher.Constraint("Vertical", 7))
sketch10.addConstraint(Sketcher.Constraint("Coincident", 7, 1, 5, 2))
sketch10.addConstraint(Sketcher.Constraint("Horizontal", 3, 2, 7, 2))
sketch10.addConstraint(Sketcher.Constraint("Angle", 2, Q("-45 deg")))
sketch10.addConstraint(Sketcher.Constraint("DistanceX", 1, 1, 1, 2, Q("4.1 mm")))
sketch10.addConstraint(Sketcher.Constraint("DistanceX", 4, 2, -1, 1, Q("18 mm")))
sketch10.addConstraint(Sketcher.Constraint("DistanceX", 6, 2, 6, 1, Q("10.75 mm")))
sketch10.addConstraint(Sketcher.Constraint("DistanceY", 0, 2, 0, 1, Q("0.25 mm")))
sketch10.addConstraint(Sketcher.Constraint("DistanceY", 5, 1, 5, 2, Q("18.97 mm")))
sketch10.addConstraint(Sketcher.Constraint("DistanceY", -1, 1, 5, 2, Q("55.5 mm")))
sketch10.addConstraint(Sketcher.Constraint("DistanceX", 4, 1, 4, 2, Q("5.945 mm")))
sketch10.setExpression("Constraints[17]", "Params.sketch10_width")
sketch10.setExpression("Constraints[19]", "Params.sketch10_width2")
sketch10.setExpression("Constraints[20]", "Params.sketch10_height")
sketch10.setExpression("Constraints[21]", "Params.sketch10_height2")
groove2 = doc.addObject("PartDesign::Groove", "Groove001")
body.addObject(groove2)
groove2.Profile = sketch10
groove2.ReferenceAxis = (sketch10, ["Axis0"])
groove2.setExpression("Angle", "Params.groove2_angle")

# Sketch on XY plane
sketch11 = doc.addObject("Sketcher::SketchObject", "Sketch010")
body.addObject(sketch11)
sketch11.AttachmentSupport = (doc.XY_Plane, [""])
sketch11.MapMode = "FlatFace"
sketch11.AttachmentOffset = App.Placement(V(0, 0, 45.5), App.Rotation())
add_polygon(sketch11, [(-22.375, -22), (-22.375, -31), (-23.125, -31.75), (-25, -31.75), (-25, -34), (-18, -34), (-18, -22)])  # lines 0-6
sketch11.addGeometry(Part.LineSegment(V(-18, -22, 0), V(-18, -34, 0)), True)  # axis
sketch11.addConstraint(Sketcher.Constraint("Vertical", 0))
sketch11.addConstraint(Sketcher.Constraint("Horizontal", 2))
sketch11.addConstraint(Sketcher.Constraint("Vertical", 3))
sketch11.addConstraint(Sketcher.Constraint("Horizontal", 4))
sketch11.addConstraint(Sketcher.Constraint("Vertical", 5))
sketch11.addConstraint(Sketcher.Constraint("Horizontal", 6))
sketch11.addConstraint(Sketcher.Constraint("Vertical", 7))
sketch11.addConstraint(Sketcher.Constraint("Coincident", 7, 1, 5, 2))
sketch11.addConstraint(Sketcher.Constraint("Horizontal", 3, 2, 7, 2))
sketch11.addConstraint(Sketcher.Constraint("DistanceX", 4, 1, 4, 2, Q("7 mm")))
sketch11.addConstraint(Sketcher.Constraint("DistanceY", 0, 2, 0, 1, Q("9 mm")))
sketch11.addConstraint(Sketcher.Constraint("DistanceY", 5, 1, 5, 2, Q("12 mm")))
sketch11.addConstraint(Sketcher.Constraint("Angle", 1, Q("-135 deg")))
sketch11.addConstraint(Sketcher.Constraint("DistanceY", 0, 2, -1, 1, Q("31 mm")))
sketch11.addConstraint(Sketcher.Constraint("DistanceX", 2, 2, -1, 1, Q("25 mm")))
sketch11.addConstraint(Sketcher.Constraint("DistanceY", 3, 2, 3, 1, Q("2.25 mm")))
sketch11.addConstraint(Sketcher.Constraint("DistanceX", 2, 2, 2, 1, Q("1.875 mm")))
sketch11.setExpression("Constraints[16]", "Params.sketch11_width")
sketch11.setExpression("Constraints[17]", "Params.sketch11_height")
sketch11.setExpression("Constraints[18]", "Params.sketch11_height2")
sketch11.setExpression("Constraints[22]", "Params.sketch11_height3")
groove3 = doc.addObject("PartDesign::Groove", "Groove002")
body.addObject(groove3)
groove3.Profile = sketch11
groove3.ReferenceAxis = (sketch11, ["Axis0"])
groove3.setExpression("Angle", "Params.groove3_angle")

# Sketch on XZ plane
sketch12 = doc.addObject("Sketcher::SketchObject", "Sketch011")
body.addObject(sketch12)
sketch12.AttachmentSupport = (doc.XZ_Plane, [""])
sketch12.MapMode = "FlatFace"
sketch12.AttachmentOffset = App.Placement(V(0, 0, 17), App.Rotation())
add_polygon(sketch12, [(-21.4, 60.55), (-26.75, 60.55), (-27.5, 59.8), (-27.5, 55.25), (-22.125, 55.25), (-22.125, 52.7472), (-18, 52.7472), (-18, 52.7482), (-21, 54.550782), (-21, 60.15)])  # lines 0-9
sketch12.addGeometry(Part.LineSegment(V(-18, 52.7472, 0), V(-18, 60.55, 0)), True)  # axis
sketch12.addConstraint(Sketcher.Constraint("Horizontal", 0))
sketch12.addConstraint(Sketcher.Constraint("Vertical", 2))
sketch12.addConstraint(Sketcher.Constraint("Horizontal", 3))
sketch12.addConstraint(Sketcher.Constraint("Vertical", 4))
sketch12.addConstraint(Sketcher.Constraint("Horizontal", 5))
sketch12.addConstraint(Sketcher.Constraint("Vertical", 6))
sketch12.addConstraint(Sketcher.Constraint("Vertical", 8))
sketch12.addConstraint(Sketcher.Constraint("Vertical", 10))
sketch12.addConstraint(Sketcher.Constraint("Coincident", 10, 1, 5, 2))
sketch12.addConstraint(Sketcher.Constraint("Perpendicular", 1, 9))
sketch12.addConstraint(Sketcher.Constraint("Horizontal", 9, 2, 10, 2))
sketch12.addConstraint(Sketcher.Constraint("Angle", 1, Q("-135 deg")))
sketch12.addConstraint(Sketcher.Constraint("Angle", 7, Q("149 deg")))
sketch12.addConstraint(Sketcher.Constraint("DistanceX", 5, 2, -1, 1, Q("18 mm")))
sketch12.addConstraint(Sketcher.Constraint("DistanceX", 7, 2, -1, 1, Q("21 mm")))
sketch12.addConstraint(Sketcher.Constraint("DistanceX", 0, 2, 0, 1, Q("5.35 mm")))
sketch12.addConstraint(Sketcher.Constraint("DistanceY", 2, 2, 2, 1, Q("4.55 mm")))
sketch12.addConstraint(Sketcher.Constraint("DistanceX", 1, 2, -1, 1, Q("27.5 mm")))
sketch12.addConstraint(Sketcher.Constraint("DistanceY", -1, 1, 1, 2, Q("59.8 mm")))
sketch12.addConstraint(Sketcher.Constraint("DistanceX", 9, 2, -1, 1, Q("21.4 mm")))
sketch12.addConstraint(Sketcher.Constraint("DistanceX", 3, 1, 3, 2, Q("5.375 mm")))
sketch12.addConstraint(Sketcher.Constraint("DistanceY", 6, 1, 6, 2, Q("0.001 mm")))
sketch12.addConstraint(Sketcher.Constraint("DistanceY", 4, 2, 4, 1, Q("2.5028 mm")))
sketch12.setExpression("Constraints[25]", "Params.sketch12_width")
sketch12.setExpression("Constraints[26]", "Params.sketch12_height")
revolution5 = doc.addObject("PartDesign::Revolution", "Revolution004")
body.addObject(revolution5)
revolution5.Profile = sketch12
revolution5.ReferenceAxis = (sketch12, ["Axis0"])
revolution5.setExpression("Angle", "Params.revolution5_angle")

# Sketch on XY plane
sketch13 = doc.addObject("Sketcher::SketchObject", "Sketch012")
body.addObject(sketch13)
sketch13.AttachmentSupport = (doc.XY_Plane, [""])
sketch13.MapMode = "FlatFace"
sketch13.AttachmentOffset = App.Placement(V(0, 0, 60.55), App.Rotation())
add_polygon(sketch13, [(-15, -18.732051), (-15, -15.267949), (-18, -13.535898), (-21, -15.267949), (-21, -18.732051), (-18, -20.464102)])  # lines 0-5
sketch13.addConstraint(Sketcher.Constraint("Vertical", 0))
sketch13.addConstraint(Sketcher.Constraint("Vertical", 3))
sketch13.addConstraint(Sketcher.Constraint("Parallel", 1, 4))
sketch13.addConstraint(Sketcher.Constraint("Parallel", 2, 5))
sketch13.addConstraint(Sketcher.Constraint("Horizontal", 0, 2, 2, 2))
sketch13.addConstraint(Sketcher.Constraint("Horizontal", 3, 2, 5, 2))
sketch13.addConstraint(Sketcher.Constraint("Vertical", 1, 2, 4, 2))
sketch13.addConstraint(Sketcher.Constraint("Angle", 1, Q("150 deg")))
sketch13.addConstraint(Sketcher.Constraint("DistanceX", 0, 2, -1, 1, Q("15 mm")))
sketch13.addConstraint(Sketcher.Constraint("DistanceX", 1, 2, -1, 1, Q("18 mm")))
sketch13.addConstraint(Sketcher.Constraint("DistanceY", 0, 1, 0, 2, Q("3.464102 mm")))
sketch13.addConstraint(Sketcher.Constraint("DistanceY", 1, 2, -1, 1, Q("13.535898 mm")))
pocket4 = doc.addObject("PartDesign::Pocket", "Pocket003")
body.addObject(pocket4)
pocket4.Profile = sketch13
pocket4.setExpression("Length", "Params.pocket4_length")
doc.recompute()

datumplane = doc.addObject("PartDesign::Plane", "DatumPlane")
body.addObject(datumplane)
datumplane.AttachmentSupport = (doc.XZ_Plane, [""])
datumplane.MapMode = "FlatFace"
datumplane.AttachmentOffset = App.Placement(V(0, 0, 17), App.Rotation())
mirrored4 = doc.addObject("PartDesign::Mirrored", "Mirrored003")
body.addObject(mirrored4)
mirrored4.Originals = [groove3]
mirrored4.MirrorPlane = (datumplane, [""])
body.Tip = mirrored4
doc.recompute()

mirrored5 = doc.addObject("PartDesign::Mirrored", "Mirrored004")
body.addObject(mirrored5)
mirrored5.Originals = [groove2, groove3, revolution5, pocket4]
mirrored5.MirrorPlane = (doc.YZ_Plane, [""])
body.Tip = mirrored5

# Sketch on XY plane
sketch14 = doc.addObject("Sketcher::SketchObject", "Sketch013")
body.addObject(sketch14)
sketch14.AttachmentSupport = (doc.XY_Plane, [""])
sketch14.MapMode = "FlatFace"
sketch14.AttachmentOffset = App.Placement(V(0, 0, 45.5), App.Rotation())
add_polygon(sketch14, [(22.375, -12), (22.375, -3), (23.125, -2.25), (25, -2.25), (25, 0), (18, 0), (18, -12)])  # lines 0-6
sketch14.addGeometry(Part.LineSegment(V(18, -12, 0), V(18, 0, 0)), True)  # axis
sketch14.addConstraint(Sketcher.Constraint("Vertical", 0))
sketch14.addConstraint(Sketcher.Constraint("Horizontal", 2))
sketch14.addConstraint(Sketcher.Constraint("Vertical", 3))
sketch14.addConstraint(Sketcher.Constraint("Horizontal", 4))
sketch14.addConstraint(Sketcher.Constraint("Vertical", 5))
sketch14.addConstraint(Sketcher.Constraint("Horizontal", 6))
sketch14.addConstraint(Sketcher.Constraint("Vertical", 7))
sketch14.addConstraint(Sketcher.Constraint("Coincident", 7, 1, 5, 2))
sketch14.addConstraint(Sketcher.Constraint("PointOnObject", 3, 2, -1))
sketch14.addConstraint(Sketcher.Constraint("PointOnObject", 7, 2, -1))
sketch14.addConstraint(Sketcher.Constraint("DistanceX", 4, 2, 4, 1, Q("7 mm")))
sketch14.addConstraint(Sketcher.Constraint("DistanceY", 0, 1, 0, 2, Q("9 mm")))
sketch14.addConstraint(Sketcher.Constraint("DistanceY", 5, 2, 5, 1, Q("12 mm")))
sketch14.addConstraint(Sketcher.Constraint("Angle", 1, Q("45 deg")))
sketch14.addConstraint(Sketcher.Constraint("DistanceX", -1, 1, 2, 2, Q("25 mm")))
sketch14.addConstraint(Sketcher.Constraint("DistanceY", 3, 1, 3, 2, Q("2.25 mm")))
sketch14.addConstraint(Sketcher.Constraint("DistanceX", 2, 1, 2, 2, Q("1.875 mm")))
sketch14.setExpression("Constraints[17]", "Params.sketch14_width")
sketch14.setExpression("Constraints[18]", "Params.sketch14_height")
sketch14.setExpression("Constraints[19]", "Params.sketch14_height2")
sketch14.setExpression("Constraints[22]", "Params.sketch14_height3")
groove4 = doc.addObject("PartDesign::Groove", "Groove003")
body.addObject(groove4)
groove4.Profile = sketch14
groove4.ReferenceAxis = (sketch14, ["Axis0"])
groove4.setExpression("Angle", "Params.groove4_angle")
body2 = doc.addObject("PartDesign::Body", "Body001")

# Sketch on XY plane
sketch15 = doc.addObject("Sketcher::SketchObject", "Sketch014")
body2.addObject(sketch15)
sketch15.AttachmentSupport = (doc.getObject("XY_Plane001"), [""])
sketch15.MapMode = "FlatFace"
sketch15.AttachmentOffset = App.Placement(V(0, 0, 45.5), App.Rotation())
sketch15.addGeometry(Part.Circle(V(-23.5, -33.25, 0), V(0, 0, 1), 1.5), False)
sketch15.addGeometry(Part.LineSegment(V(-18, -33.25, 0), V(-18, -43.25, 0)), True)  # axis
sketch15.addConstraint(Sketcher.Constraint("Vertical", 1))
sketch15.addConstraint(Sketcher.Constraint("Horizontal", 0, 3, 1, 1))
sketch15.addConstraint(Sketcher.Constraint("Diameter", 0, Q("3 mm")))
sketch15.addConstraint(Sketcher.Constraint("DistanceY", 1, 2, 1, 1, Q("10 mm")))
sketch15.addConstraint(Sketcher.Constraint("DistanceX", 1, 1, -1, 1, Q("18 mm")))
sketch15.addConstraint(Sketcher.Constraint("DistanceX", 0, 3, -1, 1, Q("23.5 mm")))
sketch15.addConstraint(Sketcher.Constraint("DistanceY", 0, 3, -1, 1, Q("33.25 mm")))
sketch15.setExpression("Constraints[2]", "Params.sketch15_diameter")
sketch15.setExpression("Constraints[3]", "Params.sketch15_height")
revolution6 = doc.addObject("PartDesign::Revolution", "Revolution005")
body2.addObject(revolution6)
revolution6.Profile = sketch15
revolution6.ReferenceAxis = (sketch15, ["Axis0"])
revolution6.setExpression("Angle", "Params.revolution6_angle")
body3 = doc.addObject("PartDesign::Body", "Body002")
doc.recompute()

mirroring = doc.addObject("Part::Mirroring", "Mirroring")
mirroring.Source = body2
mirroring.Base = V(0, 0, 0)
mirroring.Normal = V(1, 0, 0)
body3.BaseFeature = mirroring
doc.recompute()
body4 = doc.addObject("PartDesign::Body", "Body003")
doc.recompute()

mirroring2 = doc.addObject("Part::Mirroring", "Mirroring001")
mirroring2.Source = body2
mirroring2.Base = V(0, -17, 0)
mirroring2.Normal = V(0, -1, 0)
body4.BaseFeature = mirroring2
doc.recompute()
body5 = doc.addObject("PartDesign::Body", "Body004")
doc.recompute()

mirroring3 = doc.addObject("Part::Mirroring", "Mirroring002")
mirroring3.Source = body3
mirroring3.Base = V(0, -17, 0)
mirroring3.Normal = V(0, -1, 0)
body5.BaseFeature = mirroring3
doc.recompute()
mirroring.Visibility = False
mirroring2.Visibility = False
mirroring3.Visibility = False

doc.recompute()
